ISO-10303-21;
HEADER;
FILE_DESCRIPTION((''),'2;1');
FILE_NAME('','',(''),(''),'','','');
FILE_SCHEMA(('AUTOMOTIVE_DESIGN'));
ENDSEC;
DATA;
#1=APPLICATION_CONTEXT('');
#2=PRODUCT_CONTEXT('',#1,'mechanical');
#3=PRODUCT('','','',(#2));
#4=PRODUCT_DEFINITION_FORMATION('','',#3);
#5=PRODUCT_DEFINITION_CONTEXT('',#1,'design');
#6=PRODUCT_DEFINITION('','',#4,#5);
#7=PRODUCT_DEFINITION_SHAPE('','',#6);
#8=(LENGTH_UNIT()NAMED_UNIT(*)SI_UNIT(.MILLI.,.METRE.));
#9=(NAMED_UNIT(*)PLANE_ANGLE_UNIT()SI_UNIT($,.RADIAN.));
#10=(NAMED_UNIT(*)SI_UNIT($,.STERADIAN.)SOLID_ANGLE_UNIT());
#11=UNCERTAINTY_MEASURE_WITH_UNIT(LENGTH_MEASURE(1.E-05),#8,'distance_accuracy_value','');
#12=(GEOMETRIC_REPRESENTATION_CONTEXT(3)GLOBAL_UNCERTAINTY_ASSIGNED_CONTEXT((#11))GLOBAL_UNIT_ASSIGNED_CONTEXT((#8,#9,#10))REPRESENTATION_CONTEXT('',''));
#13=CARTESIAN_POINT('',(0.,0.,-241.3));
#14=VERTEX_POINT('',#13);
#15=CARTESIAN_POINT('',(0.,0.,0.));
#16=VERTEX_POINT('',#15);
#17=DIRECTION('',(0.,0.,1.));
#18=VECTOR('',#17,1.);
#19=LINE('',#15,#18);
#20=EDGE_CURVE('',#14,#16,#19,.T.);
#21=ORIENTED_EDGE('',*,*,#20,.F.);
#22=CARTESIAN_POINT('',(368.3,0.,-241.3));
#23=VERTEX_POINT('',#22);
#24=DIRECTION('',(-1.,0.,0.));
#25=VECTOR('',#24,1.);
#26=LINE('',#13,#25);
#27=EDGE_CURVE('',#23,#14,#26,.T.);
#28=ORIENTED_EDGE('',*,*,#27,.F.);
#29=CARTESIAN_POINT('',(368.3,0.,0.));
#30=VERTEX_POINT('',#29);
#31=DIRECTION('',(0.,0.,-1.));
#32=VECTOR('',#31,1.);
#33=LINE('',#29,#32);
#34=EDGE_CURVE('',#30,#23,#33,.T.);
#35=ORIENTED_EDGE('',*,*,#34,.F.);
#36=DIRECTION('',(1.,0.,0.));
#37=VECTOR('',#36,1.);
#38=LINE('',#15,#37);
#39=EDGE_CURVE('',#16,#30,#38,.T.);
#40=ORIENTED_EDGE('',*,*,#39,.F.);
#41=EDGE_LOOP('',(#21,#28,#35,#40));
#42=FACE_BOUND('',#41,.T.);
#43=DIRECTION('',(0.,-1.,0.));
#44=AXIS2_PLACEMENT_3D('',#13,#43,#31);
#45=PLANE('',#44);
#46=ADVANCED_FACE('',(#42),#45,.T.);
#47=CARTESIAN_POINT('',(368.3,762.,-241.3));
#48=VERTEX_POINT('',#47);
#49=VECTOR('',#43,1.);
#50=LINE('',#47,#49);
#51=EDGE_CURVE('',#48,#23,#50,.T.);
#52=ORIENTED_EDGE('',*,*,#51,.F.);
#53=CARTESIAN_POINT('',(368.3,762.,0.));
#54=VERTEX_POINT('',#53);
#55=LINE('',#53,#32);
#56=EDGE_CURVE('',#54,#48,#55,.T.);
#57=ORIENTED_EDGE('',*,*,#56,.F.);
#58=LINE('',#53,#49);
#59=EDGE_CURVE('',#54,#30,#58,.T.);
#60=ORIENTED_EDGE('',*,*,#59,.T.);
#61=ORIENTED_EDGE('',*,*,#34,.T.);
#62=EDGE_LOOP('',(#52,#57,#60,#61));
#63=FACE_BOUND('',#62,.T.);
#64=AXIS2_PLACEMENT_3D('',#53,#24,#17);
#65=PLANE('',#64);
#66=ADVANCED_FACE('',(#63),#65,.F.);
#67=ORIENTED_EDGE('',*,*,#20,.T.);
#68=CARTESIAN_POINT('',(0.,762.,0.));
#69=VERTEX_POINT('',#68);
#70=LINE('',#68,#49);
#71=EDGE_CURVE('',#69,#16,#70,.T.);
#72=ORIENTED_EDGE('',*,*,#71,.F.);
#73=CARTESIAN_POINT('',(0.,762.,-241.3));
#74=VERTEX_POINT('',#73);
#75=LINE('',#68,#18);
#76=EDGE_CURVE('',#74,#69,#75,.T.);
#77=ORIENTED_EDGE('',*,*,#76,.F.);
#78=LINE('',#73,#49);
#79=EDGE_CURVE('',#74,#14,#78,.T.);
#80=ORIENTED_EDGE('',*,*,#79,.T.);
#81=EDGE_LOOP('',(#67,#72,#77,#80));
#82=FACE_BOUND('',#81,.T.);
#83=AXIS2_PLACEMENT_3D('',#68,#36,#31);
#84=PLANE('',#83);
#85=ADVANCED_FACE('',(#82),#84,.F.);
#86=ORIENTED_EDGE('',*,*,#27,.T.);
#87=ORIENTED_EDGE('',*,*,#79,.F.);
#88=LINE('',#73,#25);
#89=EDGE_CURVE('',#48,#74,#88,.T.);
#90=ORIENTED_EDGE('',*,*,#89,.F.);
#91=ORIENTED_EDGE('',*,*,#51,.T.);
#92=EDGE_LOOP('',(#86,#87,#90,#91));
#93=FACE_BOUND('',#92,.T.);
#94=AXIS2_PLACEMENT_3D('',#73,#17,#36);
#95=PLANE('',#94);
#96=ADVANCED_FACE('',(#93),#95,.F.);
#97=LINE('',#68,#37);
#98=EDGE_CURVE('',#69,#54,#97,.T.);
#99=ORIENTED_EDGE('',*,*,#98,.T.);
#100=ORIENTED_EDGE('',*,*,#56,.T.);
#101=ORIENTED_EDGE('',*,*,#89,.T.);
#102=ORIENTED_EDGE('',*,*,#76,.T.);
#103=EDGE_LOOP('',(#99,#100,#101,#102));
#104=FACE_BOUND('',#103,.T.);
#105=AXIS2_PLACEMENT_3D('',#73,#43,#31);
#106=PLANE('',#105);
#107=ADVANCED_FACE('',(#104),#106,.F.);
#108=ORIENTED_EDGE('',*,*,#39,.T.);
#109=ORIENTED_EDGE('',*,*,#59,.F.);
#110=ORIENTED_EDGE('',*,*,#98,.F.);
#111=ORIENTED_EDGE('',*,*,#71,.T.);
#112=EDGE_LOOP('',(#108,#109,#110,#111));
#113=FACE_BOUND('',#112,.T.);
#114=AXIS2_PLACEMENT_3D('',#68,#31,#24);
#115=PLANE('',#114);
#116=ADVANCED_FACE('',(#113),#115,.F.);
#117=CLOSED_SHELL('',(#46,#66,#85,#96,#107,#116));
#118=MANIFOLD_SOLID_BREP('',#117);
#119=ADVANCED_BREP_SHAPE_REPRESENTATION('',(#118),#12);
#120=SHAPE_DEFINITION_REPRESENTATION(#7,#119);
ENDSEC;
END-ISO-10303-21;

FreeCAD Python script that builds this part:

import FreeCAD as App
import Part
import Sketcher
Q = App.Units.Quantity


def add_polygon(sketch, points):
    """Adds a closed chain of lines whose ends are joined by coincident constraints."""
    first, n = sketch.GeometryCount, len(points)
    for a, b in zip(points, points[1:] + points[:1]):
        sketch.addGeometry(Part.LineSegment(App.Vector(*a, 0), App.Vector(*b, 0)), False)
    for i in range(n):
        sketch.addConstraint(Sketcher.Constraint("Coincident", first + i, 2, first + (i + 1) % n, 1))

doc = App.newDocument("Part")
params = doc.addObject("Spreadsheet::Sheet", "Params")
for row, (alias, value) in enumerate([
    ("sketch1_width", "14.5 in"),
    ("sketch1_height", "9.5 in"),
    ("pad1_length", "30 in"),
], start=1):
    params.set(f"A{row}", alias)
    params.set(f"B{row}", "=" + value)
    params.setAlias(f"B{row}", alias)

body = doc.addObject("PartDesign::Body", "Body")

# Sketch on XZ plane
sketch1 = body.newObject("Sketcher::SketchObject", "Sketch")
sketch1.AttachmentSupport = (doc.getObject("XZ_Plane"), [""])
sketch1.MapMode = "FlatFace"
add_polygon(sketch1, [(0, -241), (0, 0), (368, 0), (368, -241)])  # lines 0-3
sketch1.addConstraint([
    Sketcher.Constraint("Vertical", 0),
    Sketcher.Constraint("Horizontal", 1),
    Sketcher.Constraint("Vertical", 2),
    Sketcher.Constraint("Horizontal", 3),
    Sketcher.Constraint("Coincident", 0, 2, -1, 1),
    Sketcher.Constraint("DistanceX", 1, 1, 1, 2, Q("14.5 in")),
    Sketcher.Constraint("DistanceY", 0, 1, 0, 2, Q("9.5 in")),
])
sketch1.setExpression("Constraints[9]", "Params.sketch1_width")
sketch1.setExpression("Constraints[10]", "Params.sketch1_height")
pad1 = body.newObject("PartDesign::Pad", "Pad")
pad1.Profile = sketch1
pad1.setExpression("Length", "Params.pad1_length")
pad1.Reversed = True

doc.recompute()
